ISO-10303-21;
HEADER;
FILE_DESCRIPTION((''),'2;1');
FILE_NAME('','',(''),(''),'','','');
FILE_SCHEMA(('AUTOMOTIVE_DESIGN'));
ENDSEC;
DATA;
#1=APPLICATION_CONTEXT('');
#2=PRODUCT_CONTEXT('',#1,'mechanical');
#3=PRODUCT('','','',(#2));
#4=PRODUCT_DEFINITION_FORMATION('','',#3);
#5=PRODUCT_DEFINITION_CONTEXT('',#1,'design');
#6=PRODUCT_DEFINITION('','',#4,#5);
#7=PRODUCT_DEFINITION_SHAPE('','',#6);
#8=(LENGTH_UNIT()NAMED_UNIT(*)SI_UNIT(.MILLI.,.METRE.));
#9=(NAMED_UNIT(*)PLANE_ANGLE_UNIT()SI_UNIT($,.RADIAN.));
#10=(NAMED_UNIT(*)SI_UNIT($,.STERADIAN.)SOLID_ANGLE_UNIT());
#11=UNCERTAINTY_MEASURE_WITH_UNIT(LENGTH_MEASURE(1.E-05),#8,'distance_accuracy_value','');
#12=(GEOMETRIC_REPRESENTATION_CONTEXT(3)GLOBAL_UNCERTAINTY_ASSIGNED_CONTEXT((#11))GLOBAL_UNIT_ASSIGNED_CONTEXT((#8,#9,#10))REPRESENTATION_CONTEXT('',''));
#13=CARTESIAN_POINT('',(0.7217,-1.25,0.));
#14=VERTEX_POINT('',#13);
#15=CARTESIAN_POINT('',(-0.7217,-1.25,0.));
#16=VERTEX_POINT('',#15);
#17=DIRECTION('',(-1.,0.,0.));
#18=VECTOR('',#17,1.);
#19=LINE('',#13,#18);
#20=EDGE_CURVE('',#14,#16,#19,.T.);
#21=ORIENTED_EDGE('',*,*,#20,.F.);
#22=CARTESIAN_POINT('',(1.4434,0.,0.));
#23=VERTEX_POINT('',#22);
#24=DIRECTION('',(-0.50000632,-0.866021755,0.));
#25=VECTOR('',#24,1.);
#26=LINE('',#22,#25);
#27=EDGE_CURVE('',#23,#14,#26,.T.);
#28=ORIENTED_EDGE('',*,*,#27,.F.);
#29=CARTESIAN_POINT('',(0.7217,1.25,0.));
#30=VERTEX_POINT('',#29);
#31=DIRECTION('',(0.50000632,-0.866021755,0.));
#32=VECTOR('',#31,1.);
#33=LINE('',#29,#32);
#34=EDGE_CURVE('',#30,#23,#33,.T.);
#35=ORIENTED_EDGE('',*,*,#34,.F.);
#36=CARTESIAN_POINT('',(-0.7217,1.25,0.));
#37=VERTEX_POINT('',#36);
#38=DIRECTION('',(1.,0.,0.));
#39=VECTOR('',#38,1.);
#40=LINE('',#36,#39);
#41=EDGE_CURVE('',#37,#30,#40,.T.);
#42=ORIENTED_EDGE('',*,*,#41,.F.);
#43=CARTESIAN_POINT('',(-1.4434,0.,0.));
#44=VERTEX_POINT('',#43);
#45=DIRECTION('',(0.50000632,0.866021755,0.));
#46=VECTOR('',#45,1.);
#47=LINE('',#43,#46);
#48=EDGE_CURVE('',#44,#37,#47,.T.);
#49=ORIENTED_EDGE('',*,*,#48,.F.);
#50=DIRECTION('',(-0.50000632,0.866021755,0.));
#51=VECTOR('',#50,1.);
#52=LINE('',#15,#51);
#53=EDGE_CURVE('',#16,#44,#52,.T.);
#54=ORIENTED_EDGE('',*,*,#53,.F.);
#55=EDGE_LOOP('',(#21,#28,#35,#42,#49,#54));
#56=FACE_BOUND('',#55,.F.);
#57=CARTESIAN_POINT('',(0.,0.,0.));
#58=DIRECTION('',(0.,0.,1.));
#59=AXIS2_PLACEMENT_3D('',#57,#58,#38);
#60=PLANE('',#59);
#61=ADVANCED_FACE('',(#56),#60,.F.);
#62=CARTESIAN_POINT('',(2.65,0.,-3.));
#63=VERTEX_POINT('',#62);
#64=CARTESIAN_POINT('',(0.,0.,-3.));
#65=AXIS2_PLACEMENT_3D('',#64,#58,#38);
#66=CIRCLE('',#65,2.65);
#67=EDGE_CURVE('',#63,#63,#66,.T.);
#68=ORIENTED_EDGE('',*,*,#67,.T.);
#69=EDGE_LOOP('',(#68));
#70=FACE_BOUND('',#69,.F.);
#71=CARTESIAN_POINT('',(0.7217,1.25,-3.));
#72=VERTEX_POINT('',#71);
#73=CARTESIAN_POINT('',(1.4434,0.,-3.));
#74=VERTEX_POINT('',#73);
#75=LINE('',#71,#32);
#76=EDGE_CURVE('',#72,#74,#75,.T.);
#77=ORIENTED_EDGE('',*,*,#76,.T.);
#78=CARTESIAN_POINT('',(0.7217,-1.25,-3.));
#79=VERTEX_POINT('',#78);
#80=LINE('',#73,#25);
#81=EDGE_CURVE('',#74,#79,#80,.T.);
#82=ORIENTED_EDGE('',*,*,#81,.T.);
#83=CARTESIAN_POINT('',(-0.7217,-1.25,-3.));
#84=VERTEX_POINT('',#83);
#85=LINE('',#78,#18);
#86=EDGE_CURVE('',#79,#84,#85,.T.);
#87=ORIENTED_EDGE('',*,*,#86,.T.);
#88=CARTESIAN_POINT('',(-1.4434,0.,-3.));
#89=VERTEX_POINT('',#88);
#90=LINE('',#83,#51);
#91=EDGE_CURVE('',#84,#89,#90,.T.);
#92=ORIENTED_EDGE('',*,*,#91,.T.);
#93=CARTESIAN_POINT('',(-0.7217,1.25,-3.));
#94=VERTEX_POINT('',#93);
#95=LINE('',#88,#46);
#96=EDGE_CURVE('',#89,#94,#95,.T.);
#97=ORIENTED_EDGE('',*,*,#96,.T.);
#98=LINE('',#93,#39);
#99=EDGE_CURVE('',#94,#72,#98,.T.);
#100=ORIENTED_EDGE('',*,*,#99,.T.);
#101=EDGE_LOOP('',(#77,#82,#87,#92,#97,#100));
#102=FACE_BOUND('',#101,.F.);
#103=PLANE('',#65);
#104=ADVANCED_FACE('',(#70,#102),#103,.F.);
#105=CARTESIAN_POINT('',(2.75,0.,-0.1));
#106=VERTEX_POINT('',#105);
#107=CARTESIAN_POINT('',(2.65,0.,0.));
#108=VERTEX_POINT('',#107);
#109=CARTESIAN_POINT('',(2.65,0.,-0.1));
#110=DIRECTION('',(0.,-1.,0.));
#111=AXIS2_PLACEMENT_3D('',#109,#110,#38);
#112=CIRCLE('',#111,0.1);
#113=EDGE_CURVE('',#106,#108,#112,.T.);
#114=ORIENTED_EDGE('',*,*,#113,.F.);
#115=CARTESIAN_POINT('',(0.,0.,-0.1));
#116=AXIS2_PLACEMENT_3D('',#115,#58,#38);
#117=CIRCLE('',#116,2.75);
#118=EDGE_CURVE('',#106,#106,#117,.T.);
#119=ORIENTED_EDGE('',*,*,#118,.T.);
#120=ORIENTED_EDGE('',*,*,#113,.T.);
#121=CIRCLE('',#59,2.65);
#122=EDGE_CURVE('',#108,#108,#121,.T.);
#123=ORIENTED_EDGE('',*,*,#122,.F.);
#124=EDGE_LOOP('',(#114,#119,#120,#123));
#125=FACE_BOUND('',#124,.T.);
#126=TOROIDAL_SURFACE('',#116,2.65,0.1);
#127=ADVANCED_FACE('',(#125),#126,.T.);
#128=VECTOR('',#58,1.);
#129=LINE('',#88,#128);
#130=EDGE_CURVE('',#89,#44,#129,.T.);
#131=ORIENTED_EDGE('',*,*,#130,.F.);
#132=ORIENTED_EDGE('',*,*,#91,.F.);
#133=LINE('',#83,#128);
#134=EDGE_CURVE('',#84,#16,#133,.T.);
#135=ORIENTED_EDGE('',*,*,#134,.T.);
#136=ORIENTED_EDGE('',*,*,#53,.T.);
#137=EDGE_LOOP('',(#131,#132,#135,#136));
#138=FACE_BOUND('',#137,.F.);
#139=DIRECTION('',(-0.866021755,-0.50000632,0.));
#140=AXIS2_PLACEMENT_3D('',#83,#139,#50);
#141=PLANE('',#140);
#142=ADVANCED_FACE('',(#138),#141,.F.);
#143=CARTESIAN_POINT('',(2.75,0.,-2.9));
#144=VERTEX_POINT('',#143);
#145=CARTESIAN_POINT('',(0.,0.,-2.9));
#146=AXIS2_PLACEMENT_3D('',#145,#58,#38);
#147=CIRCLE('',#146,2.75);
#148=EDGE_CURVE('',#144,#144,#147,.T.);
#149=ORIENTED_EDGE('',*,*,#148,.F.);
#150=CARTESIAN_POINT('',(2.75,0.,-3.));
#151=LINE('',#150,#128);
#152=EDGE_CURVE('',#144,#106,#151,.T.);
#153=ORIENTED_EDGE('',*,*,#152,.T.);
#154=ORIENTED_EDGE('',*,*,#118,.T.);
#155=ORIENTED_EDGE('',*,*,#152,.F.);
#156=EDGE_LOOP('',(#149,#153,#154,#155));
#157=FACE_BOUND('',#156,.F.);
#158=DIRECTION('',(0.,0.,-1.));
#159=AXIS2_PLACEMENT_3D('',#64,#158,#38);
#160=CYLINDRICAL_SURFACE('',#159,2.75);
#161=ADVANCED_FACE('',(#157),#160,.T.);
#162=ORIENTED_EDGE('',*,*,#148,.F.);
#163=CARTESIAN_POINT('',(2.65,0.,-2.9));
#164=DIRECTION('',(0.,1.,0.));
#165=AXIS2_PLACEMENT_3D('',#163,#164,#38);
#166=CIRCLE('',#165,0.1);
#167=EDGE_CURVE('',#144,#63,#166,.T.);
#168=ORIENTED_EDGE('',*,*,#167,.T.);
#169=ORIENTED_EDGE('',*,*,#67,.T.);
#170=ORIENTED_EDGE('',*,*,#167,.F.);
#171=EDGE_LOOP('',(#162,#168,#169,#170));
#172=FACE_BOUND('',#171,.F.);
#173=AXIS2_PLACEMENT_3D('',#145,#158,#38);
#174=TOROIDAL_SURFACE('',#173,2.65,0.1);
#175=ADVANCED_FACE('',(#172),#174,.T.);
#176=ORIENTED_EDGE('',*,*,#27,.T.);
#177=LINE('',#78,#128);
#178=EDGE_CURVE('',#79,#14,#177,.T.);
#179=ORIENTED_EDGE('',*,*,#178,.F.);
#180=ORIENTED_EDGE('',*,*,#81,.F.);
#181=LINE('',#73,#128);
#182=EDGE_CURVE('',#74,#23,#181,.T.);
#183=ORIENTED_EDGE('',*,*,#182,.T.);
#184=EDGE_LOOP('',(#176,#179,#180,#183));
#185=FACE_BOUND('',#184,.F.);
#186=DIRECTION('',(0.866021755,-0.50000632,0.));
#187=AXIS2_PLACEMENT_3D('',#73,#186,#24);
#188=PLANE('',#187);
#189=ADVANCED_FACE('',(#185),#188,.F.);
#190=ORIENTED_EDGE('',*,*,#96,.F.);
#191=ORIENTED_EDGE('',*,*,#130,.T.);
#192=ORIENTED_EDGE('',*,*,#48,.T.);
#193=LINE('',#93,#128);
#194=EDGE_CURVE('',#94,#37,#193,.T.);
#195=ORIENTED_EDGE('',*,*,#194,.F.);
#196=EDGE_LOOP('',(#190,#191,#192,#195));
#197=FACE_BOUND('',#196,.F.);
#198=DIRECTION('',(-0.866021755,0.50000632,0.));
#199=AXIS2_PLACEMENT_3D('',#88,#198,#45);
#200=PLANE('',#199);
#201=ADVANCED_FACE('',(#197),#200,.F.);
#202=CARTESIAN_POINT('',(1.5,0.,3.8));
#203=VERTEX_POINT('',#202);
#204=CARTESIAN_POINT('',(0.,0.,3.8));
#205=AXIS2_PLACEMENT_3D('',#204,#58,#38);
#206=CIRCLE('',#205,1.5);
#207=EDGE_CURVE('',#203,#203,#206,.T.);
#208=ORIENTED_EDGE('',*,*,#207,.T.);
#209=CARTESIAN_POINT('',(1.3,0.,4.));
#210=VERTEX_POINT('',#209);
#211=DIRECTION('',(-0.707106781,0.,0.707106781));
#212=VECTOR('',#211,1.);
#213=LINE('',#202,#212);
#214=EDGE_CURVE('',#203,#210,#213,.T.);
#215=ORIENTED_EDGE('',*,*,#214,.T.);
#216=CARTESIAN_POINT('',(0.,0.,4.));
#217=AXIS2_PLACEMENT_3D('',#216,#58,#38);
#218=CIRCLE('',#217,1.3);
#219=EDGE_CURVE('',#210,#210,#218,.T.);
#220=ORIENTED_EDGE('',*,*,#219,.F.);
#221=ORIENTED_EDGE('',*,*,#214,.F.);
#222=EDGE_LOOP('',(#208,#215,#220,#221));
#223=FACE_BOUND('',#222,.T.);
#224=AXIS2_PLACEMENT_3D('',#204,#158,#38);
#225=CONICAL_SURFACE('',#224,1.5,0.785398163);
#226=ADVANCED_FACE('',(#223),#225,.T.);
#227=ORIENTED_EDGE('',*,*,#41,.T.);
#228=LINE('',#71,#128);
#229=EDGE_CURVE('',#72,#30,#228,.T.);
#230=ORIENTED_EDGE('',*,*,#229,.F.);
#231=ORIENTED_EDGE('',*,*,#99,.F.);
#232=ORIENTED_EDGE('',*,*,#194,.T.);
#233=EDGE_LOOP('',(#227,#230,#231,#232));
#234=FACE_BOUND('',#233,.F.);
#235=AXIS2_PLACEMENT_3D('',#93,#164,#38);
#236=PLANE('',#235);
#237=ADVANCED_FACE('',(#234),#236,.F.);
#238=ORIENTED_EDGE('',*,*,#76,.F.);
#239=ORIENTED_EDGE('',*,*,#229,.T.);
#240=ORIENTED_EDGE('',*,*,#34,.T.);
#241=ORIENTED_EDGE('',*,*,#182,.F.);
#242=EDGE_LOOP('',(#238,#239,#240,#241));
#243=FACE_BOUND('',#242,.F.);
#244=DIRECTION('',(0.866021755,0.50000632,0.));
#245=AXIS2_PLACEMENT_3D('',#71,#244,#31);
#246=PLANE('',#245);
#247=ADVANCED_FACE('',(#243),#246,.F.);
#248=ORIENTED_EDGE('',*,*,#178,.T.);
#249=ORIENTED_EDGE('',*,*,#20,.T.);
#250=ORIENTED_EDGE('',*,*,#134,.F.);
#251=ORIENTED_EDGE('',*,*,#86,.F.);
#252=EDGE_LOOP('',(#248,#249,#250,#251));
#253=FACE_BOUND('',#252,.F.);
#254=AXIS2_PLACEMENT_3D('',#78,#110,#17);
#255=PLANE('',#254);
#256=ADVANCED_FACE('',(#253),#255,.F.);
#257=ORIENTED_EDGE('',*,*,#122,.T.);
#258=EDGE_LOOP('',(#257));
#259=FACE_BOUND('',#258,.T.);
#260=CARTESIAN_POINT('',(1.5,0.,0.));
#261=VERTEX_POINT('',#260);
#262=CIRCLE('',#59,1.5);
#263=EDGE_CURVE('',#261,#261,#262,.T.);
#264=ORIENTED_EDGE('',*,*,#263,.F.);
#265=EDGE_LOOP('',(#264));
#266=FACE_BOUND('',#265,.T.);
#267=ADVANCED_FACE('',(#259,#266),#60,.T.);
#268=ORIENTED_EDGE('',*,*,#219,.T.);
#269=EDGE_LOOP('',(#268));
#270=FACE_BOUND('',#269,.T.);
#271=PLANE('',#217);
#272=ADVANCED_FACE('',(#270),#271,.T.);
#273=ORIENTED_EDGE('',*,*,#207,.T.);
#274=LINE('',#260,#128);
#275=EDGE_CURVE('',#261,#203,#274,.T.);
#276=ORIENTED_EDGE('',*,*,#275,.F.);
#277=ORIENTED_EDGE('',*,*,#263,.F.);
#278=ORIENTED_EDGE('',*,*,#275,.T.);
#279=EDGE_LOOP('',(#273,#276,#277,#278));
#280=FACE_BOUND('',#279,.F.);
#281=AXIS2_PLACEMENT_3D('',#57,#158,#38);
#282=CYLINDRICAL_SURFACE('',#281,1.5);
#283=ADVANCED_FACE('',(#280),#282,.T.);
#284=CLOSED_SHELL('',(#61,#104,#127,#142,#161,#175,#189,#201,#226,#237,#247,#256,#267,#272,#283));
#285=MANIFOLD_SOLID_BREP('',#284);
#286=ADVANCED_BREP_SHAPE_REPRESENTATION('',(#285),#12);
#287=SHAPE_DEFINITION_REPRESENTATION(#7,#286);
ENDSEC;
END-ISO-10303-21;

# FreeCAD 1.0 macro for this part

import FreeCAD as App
import Part
import Sketcher

V = App.Vector
Q = App.Units.Quantity


def edges_at(feature, points):
    """Names of the edges that pass closest to the given points."""
    edges = feature.Shape.Edges
    near = lambda p: min(range(len(edges)), key=lambda i: edges[i].distToShape(Part.Vertex(*p))[0])
    return sorted({f"Edge{near(p) + 1}" for p in points})

doc = App.newDocument("Part")
body = doc.addObject("PartDesign::Body", "Body")

# Sketch on XY plane
sketch1 = body.newObject("Sketcher::SketchObject", "Sketch")
sketch1.AttachmentSupport = (doc.getObject("XY_Plane"), [""])
sketch1.MapMode = "FlatFace"
sketch1.AttachmentOffset = App.Placement(V(0, 0, -3), App.Rotation())
sketch1.addGeometry(Part.Circle(V(0, 0, 0), V(0, 0, 1), 2.8), False)
sketch1.addConstraint([
    Sketcher.Constraint("Coincident", 0, 3, -1, 1),
    Sketcher.Constraint("Diameter", 0, Q("5.5 mm")),
])
pad1 = body.newObject("PartDesign::Pad", "Pad")
pad1.Profile = sketch1
pad1.Length = 3
doc.recompute()

fillet = body.newObject("PartDesign::Fillet", "Fillet")
fillet.Base = (pad1, edges_at(pad1, [(-2.75, 0, -3), (-2.75, 0, 0)]))
fillet.Radius = 0.1

# Sketch on XY plane
sketch2 = body.newObject("Sketcher::SketchObject", "Sketch001")
sketch2.AttachmentSupport = (doc.getObject("XY_Plane"), [""])
sketch2.MapMode = "FlatFace"
sketch2.AttachmentOffset = App.Placement(V(0, 0, -3), App.Rotation())
sketch2.addGeometry([
    Part.LineSegment(V(0.7, 1.2, 0), V(-0.7, 1.2, 0)),  # 0
    Part.LineSegment(V(-0.7, 1.2, 0), V(-1.4, 0, 0)),  # 1
    Part.LineSegment(V(-1.4, 0, 0), V(-0.7, -1.2, 0)),  # 2
    Part.LineSegment(V(-0.7, -1.2, 0), V(0.7, -1.2, 0)),  # 3
    Part.LineSegment(V(0.7, -1.2, 0), V(1.4, 0, 0)),  # 4
    Part.LineSegment(V(1.4, 0, 0), V(0.7, 1.2, 0)),  # 5
], False)
sketch2.addConstraint([
    Sketcher.Constraint("Coincident", 0, 2, 1, 1),
    Sketcher.Constraint("Coincident", 1, 2, 2, 1),
    Sketcher.Constraint("Coincident", 2, 2, 3, 1),
    Sketcher.Constraint("Coincident", 3, 2, 4, 1),
    Sketcher.Constraint("Coincident", 4, 2, 5, 1),
    Sketcher.Constraint("Coincident", 5, 2, 0, 1),
    Sketcher.Constraint("Horizontal", 0),
    Sketcher.Constraint("Horizontal", 3),
    Sketcher.Constraint("Symmetric", 0, 2, 3, 2, -1, 1),
    Sketcher.Constraint("Symmetric", 1, 2, 4, 2, -1, 1),
    Sketcher.Constraint("PointOnObject", 1, 2, -1),
    Sketcher.Constraint("Parallel", 2, 5),
    Sketcher.Constraint("Vertical", 0, 2, 2, 2),
    Sketcher.Constraint("Angle", 1, Q("-120.0004 deg")),
    Sketcher.Constraint("DistanceY", 2, 2, 0, 2, Q("2.5 mm")),
    Sketcher.Constraint("DistanceX", 0, 2, 0, 1, Q("1.4434 mm")),
])
pocket1 = body.newObject("PartDesign::Pocket", "Pocket")
pocket1.Profile = sketch2
pocket1.Length = 3
pocket1.Reversed = True

# Sketch on XY plane
sketch3 = body.newObject("Sketcher::SketchObject", "Sketch002")
sketch3.AttachmentSupport = (doc.getObject("XY_Plane"), [""])
sketch3.MapMode = "FlatFace"
sketch3.addGeometry(Part.Circle(V(0, 0, 0), V(0, 0, 1), 1.5), False)
sketch3.addConstraint([
    Sketcher.Constraint("Coincident", 0, 3, -1, 1),
    Sketcher.Constraint("Diameter", 0, Q("3 mm")),
])
pad2 = body.newObject("PartDesign::Pad", "Pad001")
pad2.Profile = sketch3
pad2.Length = 4
doc.recompute()

chamfer = body.newObject("PartDesign::Chamfer", "Chamfer")
chamfer.Base = (pad2, edges_at(pad2, [(-1.5, 0, 4)]))
chamfer.Size = 0.2

doc.recompute()
